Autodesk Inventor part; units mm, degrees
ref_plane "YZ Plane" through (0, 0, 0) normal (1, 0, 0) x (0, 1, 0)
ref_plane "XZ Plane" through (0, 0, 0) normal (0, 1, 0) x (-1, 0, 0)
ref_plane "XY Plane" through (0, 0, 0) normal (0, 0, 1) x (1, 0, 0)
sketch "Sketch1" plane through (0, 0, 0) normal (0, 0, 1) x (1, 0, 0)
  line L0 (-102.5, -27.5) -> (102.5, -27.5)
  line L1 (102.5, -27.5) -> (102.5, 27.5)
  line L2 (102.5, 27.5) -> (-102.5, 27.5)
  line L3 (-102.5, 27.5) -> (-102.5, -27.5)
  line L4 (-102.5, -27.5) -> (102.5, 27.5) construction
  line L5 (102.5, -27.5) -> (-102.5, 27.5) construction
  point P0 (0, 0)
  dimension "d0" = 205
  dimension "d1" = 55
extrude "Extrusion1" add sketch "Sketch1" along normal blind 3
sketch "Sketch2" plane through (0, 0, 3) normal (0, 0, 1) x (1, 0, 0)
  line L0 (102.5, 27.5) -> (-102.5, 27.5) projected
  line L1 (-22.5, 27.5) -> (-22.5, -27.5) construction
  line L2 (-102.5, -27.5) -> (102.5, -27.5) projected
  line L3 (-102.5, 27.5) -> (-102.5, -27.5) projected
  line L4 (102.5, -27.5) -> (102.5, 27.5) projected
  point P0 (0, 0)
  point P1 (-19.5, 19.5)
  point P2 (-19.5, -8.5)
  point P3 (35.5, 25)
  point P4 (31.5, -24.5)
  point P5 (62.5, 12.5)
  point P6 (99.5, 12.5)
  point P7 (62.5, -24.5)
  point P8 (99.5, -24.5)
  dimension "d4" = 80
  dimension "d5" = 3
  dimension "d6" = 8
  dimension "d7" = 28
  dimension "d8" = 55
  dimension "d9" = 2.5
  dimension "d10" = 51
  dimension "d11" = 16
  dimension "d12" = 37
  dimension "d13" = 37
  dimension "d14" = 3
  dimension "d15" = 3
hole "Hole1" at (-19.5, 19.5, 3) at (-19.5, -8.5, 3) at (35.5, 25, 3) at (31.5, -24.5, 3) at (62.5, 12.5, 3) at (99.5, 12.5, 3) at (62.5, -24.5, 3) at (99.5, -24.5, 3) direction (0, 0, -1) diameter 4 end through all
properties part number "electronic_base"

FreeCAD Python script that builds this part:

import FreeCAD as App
import Part
import Sketcher
Q = App.Units.Quantity

doc = App.newDocument("Part")
body = doc.addObject("PartDesign::Body", "Body")

# Sketch on XY plane
sketch1 = body.newObject("Sketcher::SketchObject", "Sketch")
sketch1.AttachmentSupport = (doc.getObject("XY_Plane"), [""])
sketch1.MapMode = "FlatFace"
sketch1.addGeometry([
    Part.LineSegment(App.Vector(-102, 28, 0), App.Vector(-102, -28, 0)),
    Part.LineSegment(App.Vector(-102, -28, 0), App.Vector(102, -28, 0)),
    Part.LineSegment(App.Vector(102, -28, 0), App.Vector(102, 28, 0)),
    Part.LineSegment(App.Vector(102, 28, 0), App.Vector(-102, 28, 0)),
], False)
sketch1.addConstraint([
    Sketcher.Constraint("Coincident", 0, 2, 1, 1),
    Sketcher.Constraint("Coincident", 1, 2, 2, 1),
    Sketcher.Constraint("Coincident", 2, 2, 3, 1),
    Sketcher.Constraint("Coincident", 3, 2, 0, 1),
    Sketcher.Constraint("Vertical", 0),
    Sketcher.Constraint("Horizontal", 1),
    Sketcher.Constraint("Vertical", 2),
    Sketcher.Constraint("Horizontal", 3),
    Sketcher.Constraint("Symmetric", 0, 2, 2, 2, -1, 1),
    Sketcher.Constraint("DistanceX", 1, 1, 1, 2, Q("205 mm")),
    Sketcher.Constraint("DistanceY", 0, 2, 0, 1, Q("55 mm")),
])
pad1 = body.newObject("PartDesign::Pad", "Pad")
pad1.Profile = sketch1
pad1.Length = 3

# Sketch on XY plane
sketch2 = body.newObject("Sketcher::SketchObject", "Sketch001")
sketch2.AttachmentSupport = (doc.getObject("XY_Plane"), [""])
sketch2.MapMode = "FlatFace"
sketch2.AttachmentOffset = App.Placement(App.Vector(0, 0, 3), App.Rotation())
sketch2.addGeometry([
    Part.Circle(App.Vector(-19.5, 19.5, 0), App.Vector(0, 0, 1), 2),  # 0
    Part.Circle(App.Vector(-19.5, -8.5, 0), App.Vector(0, 0, 1), 2),  # 1
    Part.Circle(App.Vector(35.5, 25, 0), App.Vector(0, 0, 1), 2),  # 2
    Part.Circle(App.Vector(31.5, -24.5, 0), App.Vector(0, 0, 1), 2),  # 3
    Part.Circle(App.Vector(62.5, 12.5, 0), App.Vector(0, 0, 1), 2),  # 4
    Part.Circle(App.Vector(99.5, 12.5, 0), App.Vector(0, 0, 1), 2),  # 5
    Part.Circle(App.Vector(62.5, -24.5, 0), App.Vector(0, 0, 1), 2),  # 6
    Part.Circle(App.Vector(99.5, -24.5, 0), App.Vector(0, 0, 1), 2),  # 7
], False)
sketch2.addConstraint([
    Sketcher.Constraint("Equal", 0, 1),
    Sketcher.Constraint("Equal", 1, 2),
    Sketcher.Constraint("Equal", 2, 3),
    Sketcher.Constraint("Equal", 3, 4),
    Sketcher.Constraint("Equal", 4, 5),
    Sketcher.Constraint("Equal", 5, 6),
    Sketcher.Constraint("Equal", 6, 7),
    Sketcher.Constraint("Horizontal", 4, 3, 5, 3),
    Sketcher.Constraint("Horizontal", 3, 3, 6, 3),
    Sketcher.Constraint("Horizontal", 6, 3, 7, 3),
    Sketcher.Constraint("Vertical", 0, 3, 1, 3),
    Sketcher.Constraint("Vertical", 4, 3, 6, 3),
    Sketcher.Constraint("Vertical", 5, 3, 7, 3),
    Sketcher.Constraint("Diameter", 0, Q("4 mm")),
    Sketcher.Constraint("DistanceY", -1, 1, 2, 3, Q("25 mm")),
    Sketcher.Constraint("DistanceY", 1, 3, 0, 3, Q("28 mm")),
    Sketcher.Constraint("DistanceX", 0, 3, 2, 3, Q("55 mm")),
    Sketcher.Constraint("DistanceX", 3, 3, 2, 3, Q("4 mm")),
    Sketcher.Constraint("DistanceY", 3, 3, 1, 3, Q("16 mm")),
    Sketcher.Constraint("DistanceX", 2, 3, 4, 3, Q("27 mm")),
    Sketcher.Constraint("DistanceY", 3, 3, 4, 3, Q("37 mm")),
    Sketcher.Constraint("DistanceX", 4, 3, 5, 3, Q("37 mm")),
    Sketcher.Constraint("DistanceX", 0, 3, -1, 1, Q("19.5 mm")),
    Sketcher.Constraint("DistanceY", -1, 1, 0, 3, Q("19.5 mm")),
])
doc.recompute()
hole = body.newObject("PartDesign::Hole", "Hole")
hole.Profile = sketch2
hole.ThreadType = "None"
hole.Diameter = 4
hole.DepthType = "ThroughAll"

doc.recompute()
